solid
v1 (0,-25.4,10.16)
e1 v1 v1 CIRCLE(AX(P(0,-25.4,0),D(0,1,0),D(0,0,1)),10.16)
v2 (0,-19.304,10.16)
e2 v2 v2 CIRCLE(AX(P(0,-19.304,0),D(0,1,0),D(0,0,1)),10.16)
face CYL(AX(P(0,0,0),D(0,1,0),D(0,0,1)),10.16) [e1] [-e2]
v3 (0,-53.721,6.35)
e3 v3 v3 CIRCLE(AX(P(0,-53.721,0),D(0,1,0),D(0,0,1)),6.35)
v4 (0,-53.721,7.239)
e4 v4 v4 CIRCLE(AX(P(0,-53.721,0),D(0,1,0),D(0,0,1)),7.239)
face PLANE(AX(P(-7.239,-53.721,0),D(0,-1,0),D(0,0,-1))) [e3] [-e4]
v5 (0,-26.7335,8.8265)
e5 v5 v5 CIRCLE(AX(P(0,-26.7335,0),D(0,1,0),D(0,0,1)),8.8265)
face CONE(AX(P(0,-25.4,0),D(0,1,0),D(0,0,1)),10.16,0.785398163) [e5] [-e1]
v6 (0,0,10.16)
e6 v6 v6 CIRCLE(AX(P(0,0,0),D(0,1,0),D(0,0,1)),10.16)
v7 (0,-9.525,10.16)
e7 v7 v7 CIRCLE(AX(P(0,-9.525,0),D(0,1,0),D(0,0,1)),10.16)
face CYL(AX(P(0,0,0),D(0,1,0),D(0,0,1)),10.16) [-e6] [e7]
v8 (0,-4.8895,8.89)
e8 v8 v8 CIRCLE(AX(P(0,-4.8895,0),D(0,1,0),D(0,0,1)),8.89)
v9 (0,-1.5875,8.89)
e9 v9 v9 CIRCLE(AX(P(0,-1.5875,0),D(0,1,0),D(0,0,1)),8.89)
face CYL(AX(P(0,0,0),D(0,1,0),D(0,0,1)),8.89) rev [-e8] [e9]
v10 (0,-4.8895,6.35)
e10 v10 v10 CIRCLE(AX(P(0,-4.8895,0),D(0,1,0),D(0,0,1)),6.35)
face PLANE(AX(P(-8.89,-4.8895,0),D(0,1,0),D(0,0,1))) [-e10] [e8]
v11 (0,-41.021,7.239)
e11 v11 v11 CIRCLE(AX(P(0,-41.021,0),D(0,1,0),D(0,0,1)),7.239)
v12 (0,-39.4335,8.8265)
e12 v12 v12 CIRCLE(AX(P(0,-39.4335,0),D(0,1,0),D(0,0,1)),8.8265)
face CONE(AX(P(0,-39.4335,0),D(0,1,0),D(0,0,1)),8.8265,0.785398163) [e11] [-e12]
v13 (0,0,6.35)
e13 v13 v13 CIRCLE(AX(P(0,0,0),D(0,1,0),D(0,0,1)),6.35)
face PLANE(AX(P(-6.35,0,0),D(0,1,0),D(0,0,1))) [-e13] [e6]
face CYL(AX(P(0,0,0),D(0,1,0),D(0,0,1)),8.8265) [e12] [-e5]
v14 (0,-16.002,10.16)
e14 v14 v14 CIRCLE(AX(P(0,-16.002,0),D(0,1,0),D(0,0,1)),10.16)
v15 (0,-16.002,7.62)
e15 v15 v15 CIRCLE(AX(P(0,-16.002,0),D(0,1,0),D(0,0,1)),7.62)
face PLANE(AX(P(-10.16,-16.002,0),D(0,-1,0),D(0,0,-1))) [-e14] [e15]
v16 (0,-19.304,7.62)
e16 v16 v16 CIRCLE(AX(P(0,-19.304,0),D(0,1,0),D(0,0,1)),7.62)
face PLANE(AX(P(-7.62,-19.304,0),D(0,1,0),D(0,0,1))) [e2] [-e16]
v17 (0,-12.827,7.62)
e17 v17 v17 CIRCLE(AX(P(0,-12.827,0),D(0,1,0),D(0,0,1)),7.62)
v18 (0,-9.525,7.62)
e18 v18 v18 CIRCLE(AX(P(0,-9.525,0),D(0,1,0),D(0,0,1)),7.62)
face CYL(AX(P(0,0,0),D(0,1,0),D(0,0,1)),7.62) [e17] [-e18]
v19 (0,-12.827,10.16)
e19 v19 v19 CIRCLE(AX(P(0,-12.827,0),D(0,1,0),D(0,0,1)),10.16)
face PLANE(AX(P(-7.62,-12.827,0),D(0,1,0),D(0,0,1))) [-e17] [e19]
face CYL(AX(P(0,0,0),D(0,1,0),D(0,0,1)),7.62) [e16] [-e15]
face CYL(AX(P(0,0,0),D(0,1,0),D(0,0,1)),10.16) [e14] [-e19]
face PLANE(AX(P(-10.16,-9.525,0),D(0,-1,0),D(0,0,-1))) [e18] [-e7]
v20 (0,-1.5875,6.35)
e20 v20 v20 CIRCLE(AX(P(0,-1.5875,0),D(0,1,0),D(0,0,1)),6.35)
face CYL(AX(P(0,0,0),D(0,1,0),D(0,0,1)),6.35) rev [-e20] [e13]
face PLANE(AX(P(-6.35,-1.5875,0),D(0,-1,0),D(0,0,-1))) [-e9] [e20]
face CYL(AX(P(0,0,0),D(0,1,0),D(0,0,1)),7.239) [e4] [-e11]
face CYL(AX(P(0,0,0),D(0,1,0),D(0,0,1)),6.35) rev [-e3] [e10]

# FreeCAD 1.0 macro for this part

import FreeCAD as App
import Part
import Sketcher
from FreeCAD import Vector
Q = App.Units.Quantity


def add_polygon(sketch, points):
    """Adds a closed chain of lines whose ends are joined by coincident constraints."""
    first, n = sketch.GeometryCount, len(points)
    for a, b in zip(points, points[1:] + points[:1]):
        sketch.addGeometry(Part.LineSegment(App.Vector(*a, 0), App.Vector(*b, 0)), False)
    for i in range(n):
        sketch.addConstraint(Sketcher.Constraint("Coincident", first + i, 2, first + (i + 1) % n, 1))

doc = App.newDocument("Part")
body = doc.addObject("PartDesign::Body", "Body")

# Sketch on XY plane
sketch1 = body.newObject("Sketcher::SketchObject", "Sketch")
sketch1.AttachmentSupport = (doc.getObject("XY_Plane"), [""])
sketch1.MapMode = "FlatFace"
add_polygon(sketch1, [(-6.3, 0), (-10.2, 0), (-10.2, -9.5), (-7.6, -9.5), (-7.6, -12.8), (-10.2, -12.8), (-10.2, -16), (-7.6, -16), (-7.6, -19.3), (-10.2, -19.3), (-10.2, -25.4), (-8.8, -26.7), (-8.8, -39.4), (-7.2, -41), (-7.2, -53.7), (-6.3, -53.7), (-6.3, -4.9), (-8.9, -4.9), (-8.9, -1.6), (-6.3, -1.6)])  # lines 0-19
sketch1.addConstraint([
    Sketcher.Constraint("Horizontal", 0),
    Sketcher.Constraint("Vertical", 1),
    Sketcher.Constraint("Horizontal", 2),
    Sketcher.Constraint("Vertical", 3),
    Sketcher.Constraint("Horizontal", 4),
    Sketcher.Constraint("Vertical", 5),
    Sketcher.Constraint("Horizontal", 6),
    Sketcher.Constraint("Vertical", 7),
    Sketcher.Constraint("Horizontal", 8),
    Sketcher.Constraint("Vertical", 9),
    Sketcher.Constraint("Vertical", 11),
    Sketcher.Constraint("Vertical", 13),
    Sketcher.Constraint("Horizontal", 14),
    Sketcher.Constraint("Vertical", 15),
    Sketcher.Constraint("Horizontal", 16),
    Sketcher.Constraint("Vertical", 17),
    Sketcher.Constraint("Horizontal", 18),
    Sketcher.Constraint("Vertical", 19),
    Sketcher.Constraint("PointOnObject", 0, 2, -1),
    Sketcher.Constraint("Parallel", 10, 12),
    Sketcher.Constraint("Vertical", 1, 2, 4, 2),
    Sketcher.Constraint("Vertical", 3, 2, 6, 2),
    Sketcher.Constraint("Vertical", 5, 2, 8, 2),
    Sketcher.Constraint("Vertical", 15, 2, 18, 2),
    Sketcher.Constraint("Equal", 8, 16),
    Sketcher.Constraint("Equal", 3, 7),
    Sketcher.Constraint("Equal", 11, 13),
    Sketcher.Constraint("Equal", 7, 17),
    Sketcher.Constraint("DistanceX", 2, 1, 2, 2, Q("0.1 in")),
    Sketcher.Constraint("DistanceY", 11, 2, 11, 1, Q("0.5 in")),
    Sketcher.Constraint("DistanceY", 9, 2, -1, 1, Q("1 in")),
    Sketcher.Constraint("Angle", 10, Q("-45 deg")),
    Sketcher.Constraint("DistanceX", 0, 2, 0, 1, Q("0.15 in")),
    Sketcher.Constraint("DistanceY", 3, 2, 3, 1, Q("0.13 in")),
    Sketcher.Constraint("DistanceY", 9, 2, 9, 1, Q("0.24 in")),
    Sketcher.Constraint("DistanceX", 0, 2, -1, 1, Q("0.4 in")),
    Sketcher.Constraint("DistanceX", 14, 1, 14, 2, Q("0.035 in")),
    Sketcher.Constraint("DistanceY", 1, 2, 1, 1, Q("0.375 in")),
    Sketcher.Constraint("DistanceY", 19, 1, 19, 2, Q("0.0625 in")),
    Sketcher.Constraint("DistanceX", 11, 2, 12, 2, Q("0.0625 in")),
])
revolution = body.newObject("PartDesign::Revolution", "Revolution")
revolution.Profile = sketch1
revolution.ReferenceAxis = (sketch1, ["V_Axis"])
revolution.Angle = 360

doc.recompute()
